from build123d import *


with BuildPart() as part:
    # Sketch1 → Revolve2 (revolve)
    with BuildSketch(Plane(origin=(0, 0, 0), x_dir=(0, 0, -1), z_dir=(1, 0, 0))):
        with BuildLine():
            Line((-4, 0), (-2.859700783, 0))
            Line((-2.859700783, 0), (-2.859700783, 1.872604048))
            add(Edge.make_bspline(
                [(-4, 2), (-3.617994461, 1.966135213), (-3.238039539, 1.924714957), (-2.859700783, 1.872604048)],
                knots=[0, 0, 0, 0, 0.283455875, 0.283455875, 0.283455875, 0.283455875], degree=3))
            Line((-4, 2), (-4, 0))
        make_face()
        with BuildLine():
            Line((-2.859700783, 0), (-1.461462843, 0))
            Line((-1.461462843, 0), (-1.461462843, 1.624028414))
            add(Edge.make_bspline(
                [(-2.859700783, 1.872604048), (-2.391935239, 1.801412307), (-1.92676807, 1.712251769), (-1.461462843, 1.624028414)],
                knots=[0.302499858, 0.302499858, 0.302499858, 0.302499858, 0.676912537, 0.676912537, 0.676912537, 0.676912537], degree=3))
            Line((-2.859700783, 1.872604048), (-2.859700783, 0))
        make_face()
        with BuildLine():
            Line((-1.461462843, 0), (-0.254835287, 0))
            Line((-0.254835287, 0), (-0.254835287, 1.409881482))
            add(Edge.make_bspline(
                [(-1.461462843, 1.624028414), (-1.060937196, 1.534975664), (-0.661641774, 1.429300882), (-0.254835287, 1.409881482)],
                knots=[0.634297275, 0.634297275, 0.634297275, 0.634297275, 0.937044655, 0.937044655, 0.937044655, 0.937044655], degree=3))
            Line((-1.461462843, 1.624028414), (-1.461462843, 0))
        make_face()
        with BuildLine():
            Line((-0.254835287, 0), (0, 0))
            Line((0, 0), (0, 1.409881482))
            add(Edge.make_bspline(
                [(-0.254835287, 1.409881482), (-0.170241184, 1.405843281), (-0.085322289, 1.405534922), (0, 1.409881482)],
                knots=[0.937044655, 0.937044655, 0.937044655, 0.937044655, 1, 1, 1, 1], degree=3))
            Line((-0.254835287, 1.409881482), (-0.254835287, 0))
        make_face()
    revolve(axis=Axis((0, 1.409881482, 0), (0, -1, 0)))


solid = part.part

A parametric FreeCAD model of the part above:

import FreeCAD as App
import Part
import Sketcher
from FreeCAD import Vector

doc = App.newDocument("Part")
params = doc.addObject("Spreadsheet::Sheet", "Params")
for row, (alias, value) in enumerate([
    ("revolution_angle", "360 deg"),
], start=1):
    params.set(f"A{row}", alias)
    params.set(f"B{row}", "=" + value)
    params.setAlias(f"B{row}", alias)

body = doc.addObject("PartDesign::Body", "Body")

sketch1 = doc.addObject("Sketcher::SketchObject", "Sketch")
body.addObject(sketch1)
sketch1.AttachmentSupport = (doc.YZ_Plane, [""])
sketch1.MapMode = "FlatFace"
sketch1.addGeometry([
    Part.LineSegment(Vector(0, 4, 0), Vector(0, 0, 0)),
    Part.LineSegment(Vector(0, 0, 0), Vector(1.409881, 0, 0)),
    Part.BSplineCurve([Vector(1.409881, 0.254835, 0), Vector(1.405843, 0.170241, 0), Vector(1.405535, 0.085322, 0), Vector(1.409881, 0, 0)], [4, 4], [0.937044655, 1], False, 3, [1, 1, 1, 1], False),
    Part.BSplineCurve([Vector(1.624028, 1.461463, 0), Vector(1.534976, 1.060937, 0), Vector(1.429301, 0.661642, 0), Vector(1.409881, 0.254835, 0)], [4, 4], [0.634297275, 0.937044655], False, 3, [1, 1, 1, 1], False),
    Part.BSplineCurve([Vector(1.872604, 2.859701, 0), Vector(1.801412, 2.391935, 0), Vector(1.712252, 1.926768, 0), Vector(1.624028, 1.461463, 0)], [4, 4], [0.302499858, 0.676912537], False, 3, [1, 1, 1, 1], False),
    Part.BSplineCurve([Vector(2, 4, 0), Vector(1.966135, 3.617994, 0), Vector(1.924715, 3.23804, 0), Vector(1.872604, 2.859701, 0)], [4, 4], [0, 0.283455875], False, 3, [1, 1, 1, 1], False),
    Part.LineSegment(Vector(2, 4, 0), Vector(0, 4, 0)),
], False)
sketch1.addConstraint([
    Sketcher.Constraint("Block", 2),
    Sketcher.Constraint("Block", 3),
    Sketcher.Constraint("Block", 4),
    Sketcher.Constraint("Block", 5),
    Sketcher.Constraint("Coincident", 0, 2, 1, 1),
    Sketcher.Constraint("Coincident", 1, 2, 2, 2),
    Sketcher.Constraint("Coincident", 5, 1, 6, 1),
    Sketcher.Constraint("Coincident", 6, 2, 0, 1),
    Sketcher.Constraint("Vertical", 0),
    Sketcher.Constraint("Horizontal", 1),
    Sketcher.Constraint("Horizontal", 6),
    Sketcher.Constraint("PointOnObject", 6, 2, -2),
])
revolution = doc.addObject("PartDesign::Revolution", "Revolution")
body.addObject(revolution)
revolution.Profile = sketch1
revolution.ReferenceAxis = (sketch1, ["H_Axis"])
revolution.setExpression("Angle", "Params.revolution_angle")

doc.recompute()
